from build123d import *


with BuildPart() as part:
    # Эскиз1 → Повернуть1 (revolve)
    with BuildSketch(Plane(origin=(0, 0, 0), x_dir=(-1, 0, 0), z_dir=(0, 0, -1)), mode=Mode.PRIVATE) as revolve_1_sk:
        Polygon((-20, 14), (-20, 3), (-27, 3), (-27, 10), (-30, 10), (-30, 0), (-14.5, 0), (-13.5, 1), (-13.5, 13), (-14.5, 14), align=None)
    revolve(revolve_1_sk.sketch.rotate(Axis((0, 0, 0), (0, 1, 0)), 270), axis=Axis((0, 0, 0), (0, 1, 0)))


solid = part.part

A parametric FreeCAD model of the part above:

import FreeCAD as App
import Part
import Sketcher

V = App.Vector
Q = App.Units.Quantity

doc = App.newDocument("Part")
body = doc.addObject("PartDesign::Body", "Body")

# Sketch on XY plane
sketch1 = body.newObject("Sketcher::SketchObject", "Sketch")
sketch1.AttachmentSupport = (doc.getObject("XY_Plane"), [""])
sketch1.MapMode = "FlatFace"
sketch1.addGeometry([
    Part.LineSegment(V(20, 14, 0), V(20, 3, 0)),  # 0
    Part.LineSegment(V(20, 3, 0), V(27, 3, 0)),  # 1
    Part.LineSegment(V(27, 3, 0), V(27, 10, 0)),  # 2
    Part.LineSegment(V(27, 10, 0), V(30, 10, 0)),  # 3
    Part.LineSegment(V(30, 10, 0), V(30, 0, 0)),  # 4
    Part.LineSegment(V(30, 0, 0), V(14.5, 0, 0)),  # 5
    Part.LineSegment(V(14.5, 0, 0), V(13.5, 1, 0)),  # 6
    Part.LineSegment(V(13.5, 1, 0), V(13.5, 13, 0)),  # 7
    Part.LineSegment(V(13.5, 13, 0), V(14.5, 14, 0)),  # 8
    Part.LineSegment(V(14.5, 14, 0), V(20, 14, 0)),  # 9
], False)
sketch1.addConstraint([
    Sketcher.Constraint("Coincident", 0, 2, 1, 1),
    Sketcher.Constraint("Coincident", 1, 2, 2, 1),
    Sketcher.Constraint("Coincident", 2, 2, 3, 1),
    Sketcher.Constraint("Coincident", 3, 2, 4, 1),
    Sketcher.Constraint("Coincident", 4, 2, 5, 1),
    Sketcher.Constraint("Coincident", 5, 2, 6, 1),
    Sketcher.Constraint("Coincident", 6, 2, 7, 1),
    Sketcher.Constraint("Coincident", 7, 2, 8, 1),
    Sketcher.Constraint("Coincident", 8, 2, 9, 1),
    Sketcher.Constraint("Coincident", 9, 2, 0, 1),
    Sketcher.Constraint("Vertical", 0),
    Sketcher.Constraint("Horizontal", 1),
    Sketcher.Constraint("Vertical", 2),
    Sketcher.Constraint("Horizontal", 3),
    Sketcher.Constraint("Vertical", 4),
    Sketcher.Constraint("Horizontal", 5),
    Sketcher.Constraint("Vertical", 7),
    Sketcher.Constraint("Horizontal", 9),
    Sketcher.Constraint("PointOnObject", 4, 2, -1),
    Sketcher.Constraint("Perpendicular", 6, 8),
    Sketcher.Constraint("Vertical", 5, 2, 8, 2),
    Sketcher.Constraint("Equal", 1, 2),
    Sketcher.Constraint("Equal", 6, 8),
    Sketcher.Constraint("DistanceX", 1, 1, 1, 2, Q("7 mm")),
    Sketcher.Constraint("DistanceX", 3, 1, 3, 2, Q("3 mm")),
    Sketcher.Constraint("DistanceY", 0, 2, 0, 1, Q("11 mm")),
    Sketcher.Constraint("DistanceY", 4, 2, 4, 1, Q("10 mm")),
    Sketcher.Constraint("DistanceY", 7, 1, 7, 2, Q("12 mm")),
    Sketcher.Constraint("DistanceX", 5, 2, 5, 1, Q("15.5 mm")),
    Sketcher.Constraint("DistanceX", -1, 1, 0, 2, Q("20 mm")),
])
revolution = body.newObject("PartDesign::Revolution", "Revolution")
revolution.Profile = sketch1
revolution.ReferenceAxis = (sketch1, ["V_Axis"])
revolution.Angle = 360

doc.recompute()
